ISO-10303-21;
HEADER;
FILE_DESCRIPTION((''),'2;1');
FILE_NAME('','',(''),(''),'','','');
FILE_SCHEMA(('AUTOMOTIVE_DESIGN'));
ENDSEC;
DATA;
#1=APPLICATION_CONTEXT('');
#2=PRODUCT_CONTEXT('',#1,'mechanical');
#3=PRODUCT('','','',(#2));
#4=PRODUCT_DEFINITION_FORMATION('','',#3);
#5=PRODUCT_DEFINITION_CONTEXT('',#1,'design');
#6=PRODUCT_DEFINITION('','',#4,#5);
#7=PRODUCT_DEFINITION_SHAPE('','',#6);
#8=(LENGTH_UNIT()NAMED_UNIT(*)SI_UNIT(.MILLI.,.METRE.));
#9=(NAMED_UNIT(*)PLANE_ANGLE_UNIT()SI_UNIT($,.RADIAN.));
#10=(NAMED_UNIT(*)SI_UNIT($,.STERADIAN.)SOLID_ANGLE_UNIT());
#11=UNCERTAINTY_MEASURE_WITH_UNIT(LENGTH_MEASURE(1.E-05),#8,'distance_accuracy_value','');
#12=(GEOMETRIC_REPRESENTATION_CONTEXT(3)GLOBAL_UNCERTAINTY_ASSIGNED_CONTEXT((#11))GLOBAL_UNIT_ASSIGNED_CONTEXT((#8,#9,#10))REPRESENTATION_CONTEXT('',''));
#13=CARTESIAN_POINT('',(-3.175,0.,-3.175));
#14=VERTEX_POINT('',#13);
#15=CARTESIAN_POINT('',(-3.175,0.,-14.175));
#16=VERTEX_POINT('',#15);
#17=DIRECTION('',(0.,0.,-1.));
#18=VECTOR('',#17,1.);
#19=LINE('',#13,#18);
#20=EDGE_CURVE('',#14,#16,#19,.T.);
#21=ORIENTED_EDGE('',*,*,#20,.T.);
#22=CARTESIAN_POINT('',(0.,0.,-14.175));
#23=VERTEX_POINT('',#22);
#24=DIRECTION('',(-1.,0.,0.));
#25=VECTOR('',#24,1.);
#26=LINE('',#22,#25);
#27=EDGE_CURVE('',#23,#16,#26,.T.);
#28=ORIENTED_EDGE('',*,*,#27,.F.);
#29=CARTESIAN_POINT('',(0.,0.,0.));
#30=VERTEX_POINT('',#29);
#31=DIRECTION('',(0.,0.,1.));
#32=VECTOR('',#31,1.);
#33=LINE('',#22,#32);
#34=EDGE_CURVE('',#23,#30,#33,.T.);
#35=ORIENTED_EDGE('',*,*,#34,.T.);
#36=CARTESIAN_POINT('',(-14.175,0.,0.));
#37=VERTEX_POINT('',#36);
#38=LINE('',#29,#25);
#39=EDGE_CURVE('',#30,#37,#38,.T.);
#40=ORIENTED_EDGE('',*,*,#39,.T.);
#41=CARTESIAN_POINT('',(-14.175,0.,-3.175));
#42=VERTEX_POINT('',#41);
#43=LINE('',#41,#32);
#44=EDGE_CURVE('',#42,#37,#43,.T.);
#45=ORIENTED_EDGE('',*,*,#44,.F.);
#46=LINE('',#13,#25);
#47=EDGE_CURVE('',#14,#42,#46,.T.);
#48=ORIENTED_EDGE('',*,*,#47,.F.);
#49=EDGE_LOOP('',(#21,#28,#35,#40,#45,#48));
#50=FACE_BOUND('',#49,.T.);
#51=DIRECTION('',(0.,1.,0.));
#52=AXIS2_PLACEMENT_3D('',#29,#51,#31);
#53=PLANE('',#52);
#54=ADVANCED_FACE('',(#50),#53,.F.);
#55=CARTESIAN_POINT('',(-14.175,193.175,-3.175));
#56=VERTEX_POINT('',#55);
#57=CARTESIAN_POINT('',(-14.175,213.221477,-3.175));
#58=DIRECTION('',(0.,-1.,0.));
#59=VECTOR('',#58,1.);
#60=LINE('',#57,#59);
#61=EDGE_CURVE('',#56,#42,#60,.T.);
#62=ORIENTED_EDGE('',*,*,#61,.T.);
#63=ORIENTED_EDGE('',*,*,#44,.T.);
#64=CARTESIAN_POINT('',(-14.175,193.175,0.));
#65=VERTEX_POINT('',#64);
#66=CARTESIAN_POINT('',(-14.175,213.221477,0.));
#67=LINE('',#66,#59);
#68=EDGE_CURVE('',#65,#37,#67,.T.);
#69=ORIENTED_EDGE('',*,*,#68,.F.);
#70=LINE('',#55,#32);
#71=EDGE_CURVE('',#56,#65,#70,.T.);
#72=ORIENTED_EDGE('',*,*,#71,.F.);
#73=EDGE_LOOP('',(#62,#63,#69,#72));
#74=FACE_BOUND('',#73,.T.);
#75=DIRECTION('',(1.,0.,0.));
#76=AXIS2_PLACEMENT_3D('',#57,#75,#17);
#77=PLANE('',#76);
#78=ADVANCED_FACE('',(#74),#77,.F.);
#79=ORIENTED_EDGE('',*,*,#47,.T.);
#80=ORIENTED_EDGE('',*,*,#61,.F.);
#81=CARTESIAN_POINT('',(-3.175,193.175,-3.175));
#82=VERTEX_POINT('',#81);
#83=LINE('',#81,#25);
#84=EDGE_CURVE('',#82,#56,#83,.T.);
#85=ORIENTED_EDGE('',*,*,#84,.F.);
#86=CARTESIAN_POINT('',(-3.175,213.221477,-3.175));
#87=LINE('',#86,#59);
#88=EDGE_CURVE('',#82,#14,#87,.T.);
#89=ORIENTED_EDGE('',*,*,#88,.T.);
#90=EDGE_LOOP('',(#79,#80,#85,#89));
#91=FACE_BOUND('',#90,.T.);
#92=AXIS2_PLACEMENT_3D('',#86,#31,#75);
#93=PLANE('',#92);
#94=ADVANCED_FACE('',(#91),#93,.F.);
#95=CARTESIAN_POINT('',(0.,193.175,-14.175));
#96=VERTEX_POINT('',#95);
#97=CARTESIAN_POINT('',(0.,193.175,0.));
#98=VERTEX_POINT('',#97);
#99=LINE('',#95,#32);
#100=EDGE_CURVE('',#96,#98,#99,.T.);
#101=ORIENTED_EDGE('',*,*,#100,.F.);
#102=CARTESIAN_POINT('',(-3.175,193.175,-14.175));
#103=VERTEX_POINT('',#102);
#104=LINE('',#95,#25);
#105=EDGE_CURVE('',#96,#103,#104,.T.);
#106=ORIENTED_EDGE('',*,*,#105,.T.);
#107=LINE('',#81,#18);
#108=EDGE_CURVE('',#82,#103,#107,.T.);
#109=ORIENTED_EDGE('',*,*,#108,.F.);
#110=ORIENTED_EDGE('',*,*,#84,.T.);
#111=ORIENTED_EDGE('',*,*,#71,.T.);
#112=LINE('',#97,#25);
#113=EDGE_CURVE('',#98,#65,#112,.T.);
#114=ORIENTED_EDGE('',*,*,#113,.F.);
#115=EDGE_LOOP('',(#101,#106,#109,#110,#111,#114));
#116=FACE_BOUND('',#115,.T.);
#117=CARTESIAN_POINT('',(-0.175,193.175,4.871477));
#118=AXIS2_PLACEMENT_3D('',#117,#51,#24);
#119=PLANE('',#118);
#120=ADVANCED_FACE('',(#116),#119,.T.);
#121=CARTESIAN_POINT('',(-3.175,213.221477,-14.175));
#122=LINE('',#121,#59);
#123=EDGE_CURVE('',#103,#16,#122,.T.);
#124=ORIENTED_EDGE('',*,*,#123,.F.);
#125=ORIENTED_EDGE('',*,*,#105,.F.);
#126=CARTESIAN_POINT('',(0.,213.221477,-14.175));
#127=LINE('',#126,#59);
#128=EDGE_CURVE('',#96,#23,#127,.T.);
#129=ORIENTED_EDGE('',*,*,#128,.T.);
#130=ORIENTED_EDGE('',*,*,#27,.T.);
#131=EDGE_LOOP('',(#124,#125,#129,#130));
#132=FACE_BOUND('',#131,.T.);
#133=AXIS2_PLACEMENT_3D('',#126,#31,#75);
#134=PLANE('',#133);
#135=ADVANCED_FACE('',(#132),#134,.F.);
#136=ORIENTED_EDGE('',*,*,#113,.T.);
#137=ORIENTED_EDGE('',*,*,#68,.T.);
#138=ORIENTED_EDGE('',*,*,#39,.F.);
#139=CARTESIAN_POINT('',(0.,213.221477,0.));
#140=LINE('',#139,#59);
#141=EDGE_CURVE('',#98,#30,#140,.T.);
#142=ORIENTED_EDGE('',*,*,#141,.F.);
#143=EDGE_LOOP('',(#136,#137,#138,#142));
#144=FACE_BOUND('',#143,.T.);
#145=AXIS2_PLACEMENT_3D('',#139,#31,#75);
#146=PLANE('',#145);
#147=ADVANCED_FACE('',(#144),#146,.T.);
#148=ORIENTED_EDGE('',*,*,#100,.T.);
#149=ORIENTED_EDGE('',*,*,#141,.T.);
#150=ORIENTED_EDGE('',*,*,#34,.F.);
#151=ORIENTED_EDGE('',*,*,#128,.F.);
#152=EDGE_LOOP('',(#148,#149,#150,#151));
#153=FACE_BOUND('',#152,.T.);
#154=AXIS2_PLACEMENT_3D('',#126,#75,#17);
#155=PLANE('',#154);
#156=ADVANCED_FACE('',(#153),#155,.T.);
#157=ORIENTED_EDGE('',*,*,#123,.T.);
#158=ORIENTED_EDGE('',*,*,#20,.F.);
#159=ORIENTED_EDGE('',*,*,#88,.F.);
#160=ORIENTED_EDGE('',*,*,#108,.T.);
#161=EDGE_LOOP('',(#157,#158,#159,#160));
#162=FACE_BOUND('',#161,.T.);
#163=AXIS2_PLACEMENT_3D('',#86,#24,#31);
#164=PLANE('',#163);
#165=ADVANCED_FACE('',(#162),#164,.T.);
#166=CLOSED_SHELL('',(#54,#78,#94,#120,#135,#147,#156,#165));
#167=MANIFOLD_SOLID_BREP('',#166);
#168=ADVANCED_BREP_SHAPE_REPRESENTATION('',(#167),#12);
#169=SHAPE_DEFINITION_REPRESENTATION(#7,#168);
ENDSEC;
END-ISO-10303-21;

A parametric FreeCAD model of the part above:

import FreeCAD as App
import Part
import Sketcher
Q = App.Units.Quantity

doc = App.newDocument("Part")
body = doc.addObject("PartDesign::Body", "Body")

sketch1 = body.newObject("Sketcher::SketchObject", "Sketch")
sketch1.AttachmentSupport = (doc.getObject("XZ_Plane"), [""])
sketch1.MapMode = "FlatFace"
sketch1.addGeometry([
    Part.LineSegment(App.Vector(-3.2, -3.2, 0), App.Vector(-14.2, -3.2, 0)),
    Part.LineSegment(App.Vector(-14.2, -3.2, 0), App.Vector(-14.2, 0, 0)),
    Part.LineSegment(App.Vector(-14.2, 0, 0), App.Vector(0, 0, 0)),
    Part.LineSegment(App.Vector(0, 0, 0), App.Vector(0, -14.2, 0)),
    Part.LineSegment(App.Vector(0, -14.2, 0), App.Vector(-3.2, -14.2, 0)),
    Part.LineSegment(App.Vector(-3.2, -14.2, 0), App.Vector(-3.2, -3.2, 0)),
], False)
sketch1.addConstraint([
    Sketcher.Constraint("Coincident", 0, 2, 1, 1),
    Sketcher.Constraint("Coincident", 1, 2, 2, 1),
    Sketcher.Constraint("Coincident", 2, 2, 3, 1),
    Sketcher.Constraint("Coincident", 3, 2, 4, 1),
    Sketcher.Constraint("Coincident", 4, 2, 5, 1),
    Sketcher.Constraint("Coincident", 5, 2, 0, 1),
    Sketcher.Constraint("Horizontal", 0),
    Sketcher.Constraint("Vertical", 1),
    Sketcher.Constraint("Horizontal", 2),
    Sketcher.Constraint("Vertical", 3),
    Sketcher.Constraint("Horizontal", 4),
    Sketcher.Constraint("Vertical", 5),
    Sketcher.Constraint("Coincident", 2, 2, -1, 1),
    Sketcher.Constraint("Equal", 4, 1),
    Sketcher.Constraint("Equal", 2, 3),
    Sketcher.Constraint("DistanceX", 0, 2, 0, 1, Q("11 mm")),
    Sketcher.Constraint("DistanceX", 2, 1, 2, 2, Q("14.175 mm")),
])
pad1 = body.newObject("PartDesign::Pad", "Pad")
pad1.Profile = sketch1
pad1.Length = 193.175
pad1.Reversed = True

doc.recompute()
